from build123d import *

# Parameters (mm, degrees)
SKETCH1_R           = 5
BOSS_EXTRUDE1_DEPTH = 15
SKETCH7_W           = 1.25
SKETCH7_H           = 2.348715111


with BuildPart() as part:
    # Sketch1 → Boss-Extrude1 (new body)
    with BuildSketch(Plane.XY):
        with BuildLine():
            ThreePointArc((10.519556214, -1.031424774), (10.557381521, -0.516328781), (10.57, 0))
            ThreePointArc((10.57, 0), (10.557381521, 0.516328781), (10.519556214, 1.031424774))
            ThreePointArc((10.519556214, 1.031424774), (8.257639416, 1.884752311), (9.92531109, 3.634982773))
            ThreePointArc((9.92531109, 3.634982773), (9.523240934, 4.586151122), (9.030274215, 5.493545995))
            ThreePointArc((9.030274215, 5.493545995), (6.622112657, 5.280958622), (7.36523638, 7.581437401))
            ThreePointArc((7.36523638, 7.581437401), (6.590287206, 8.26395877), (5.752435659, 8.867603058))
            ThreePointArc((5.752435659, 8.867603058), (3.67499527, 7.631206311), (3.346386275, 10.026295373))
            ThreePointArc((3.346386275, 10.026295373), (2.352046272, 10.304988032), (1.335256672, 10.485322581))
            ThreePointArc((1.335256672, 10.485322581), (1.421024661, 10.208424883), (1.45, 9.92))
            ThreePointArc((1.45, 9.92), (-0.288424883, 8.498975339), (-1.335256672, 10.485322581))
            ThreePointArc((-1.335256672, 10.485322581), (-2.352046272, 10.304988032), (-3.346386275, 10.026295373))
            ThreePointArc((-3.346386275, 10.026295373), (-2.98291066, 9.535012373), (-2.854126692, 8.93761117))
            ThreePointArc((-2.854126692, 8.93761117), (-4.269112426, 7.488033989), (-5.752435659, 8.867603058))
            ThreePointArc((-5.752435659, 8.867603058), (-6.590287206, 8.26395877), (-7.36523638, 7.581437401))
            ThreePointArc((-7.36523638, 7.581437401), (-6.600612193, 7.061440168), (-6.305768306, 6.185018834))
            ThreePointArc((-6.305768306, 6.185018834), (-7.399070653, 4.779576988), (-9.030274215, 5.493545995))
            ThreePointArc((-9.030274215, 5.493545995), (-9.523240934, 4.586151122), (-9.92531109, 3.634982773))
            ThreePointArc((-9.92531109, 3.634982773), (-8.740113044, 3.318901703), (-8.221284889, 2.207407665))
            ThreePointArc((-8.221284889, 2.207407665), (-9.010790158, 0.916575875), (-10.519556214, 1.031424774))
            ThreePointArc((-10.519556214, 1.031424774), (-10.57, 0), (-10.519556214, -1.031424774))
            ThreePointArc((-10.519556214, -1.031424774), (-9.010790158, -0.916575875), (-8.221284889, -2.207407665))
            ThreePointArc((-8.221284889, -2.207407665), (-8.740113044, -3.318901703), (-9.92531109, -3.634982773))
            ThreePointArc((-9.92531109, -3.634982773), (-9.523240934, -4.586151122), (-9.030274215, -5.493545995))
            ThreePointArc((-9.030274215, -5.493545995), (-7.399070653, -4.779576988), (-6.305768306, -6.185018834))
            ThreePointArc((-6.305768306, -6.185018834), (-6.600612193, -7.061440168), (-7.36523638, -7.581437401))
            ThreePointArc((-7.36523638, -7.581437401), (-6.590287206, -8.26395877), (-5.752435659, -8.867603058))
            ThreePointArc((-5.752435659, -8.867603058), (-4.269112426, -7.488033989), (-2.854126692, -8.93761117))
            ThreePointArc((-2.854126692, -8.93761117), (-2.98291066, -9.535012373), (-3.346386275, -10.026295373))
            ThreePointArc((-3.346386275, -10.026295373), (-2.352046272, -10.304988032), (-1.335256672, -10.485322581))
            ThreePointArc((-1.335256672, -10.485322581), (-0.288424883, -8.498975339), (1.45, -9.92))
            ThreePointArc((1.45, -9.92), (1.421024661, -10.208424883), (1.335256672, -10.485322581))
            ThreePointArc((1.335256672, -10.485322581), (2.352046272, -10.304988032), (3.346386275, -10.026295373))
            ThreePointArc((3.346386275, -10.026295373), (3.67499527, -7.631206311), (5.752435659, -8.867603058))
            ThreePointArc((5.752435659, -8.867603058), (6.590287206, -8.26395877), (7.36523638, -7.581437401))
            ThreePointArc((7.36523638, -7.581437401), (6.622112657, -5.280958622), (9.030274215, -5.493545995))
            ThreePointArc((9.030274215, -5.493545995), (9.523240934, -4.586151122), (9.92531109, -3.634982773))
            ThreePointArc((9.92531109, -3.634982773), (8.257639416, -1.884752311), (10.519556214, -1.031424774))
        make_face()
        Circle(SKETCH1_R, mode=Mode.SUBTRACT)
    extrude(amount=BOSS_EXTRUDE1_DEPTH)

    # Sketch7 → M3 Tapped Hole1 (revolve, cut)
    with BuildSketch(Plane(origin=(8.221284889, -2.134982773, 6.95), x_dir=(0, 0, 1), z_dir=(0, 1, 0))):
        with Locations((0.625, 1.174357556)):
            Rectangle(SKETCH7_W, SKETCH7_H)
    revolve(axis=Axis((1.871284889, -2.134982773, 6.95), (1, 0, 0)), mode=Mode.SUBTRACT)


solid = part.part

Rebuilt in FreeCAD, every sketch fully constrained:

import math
import FreeCAD as App
import Part
import Sketcher


def add_polygon(sketch, points):
    """Adds a closed chain of lines whose ends are joined by coincident constraints."""
    first, n = sketch.GeometryCount, len(points)
    for a, b in zip(points, points[1:] + points[:1]):
        sketch.addGeometry(Part.LineSegment(App.Vector(*a, 0), App.Vector(*b, 0)), False)
    for i in range(n):
        sketch.addConstraint(Sketcher.Constraint("Coincident", first + i, 2, first + (i + 1) % n, 1))

doc = App.newDocument("Part")
body = doc.addObject("PartDesign::Body", "Body")

# Sketch on XY plane
sketch1 = body.newObject("Sketcher::SketchObject", "Sketch")
sketch1.AttachmentSupport = (doc.getObject("XY_Plane"), [""])
sketch1.MapMode = "FlatFace"
sketch1.addGeometry([
    Part.ArcOfCircle(Part.Circle(App.Vector(0, 0, 0), App.Vector(0, 0, 1), 10.6), math.radians(-5.6), math.radians(0)),  # 0
    Part.ArcOfCircle(Part.Circle(App.Vector(0, 0, 0), App.Vector(0, 0, 1), 10.6), math.radians(0), math.radians(5.6)),  # 1
    Part.ArcOfCircle(Part.Circle(App.Vector(9.7, 2.2, 0), App.Vector(0, 0, 1), 1.4), math.radians(80), math.radians(306)),  # 2
    Part.ArcOfCircle(Part.Circle(App.Vector(0, 0, 0), App.Vector(0, 0, 1), 10.6), math.radians(20.11), math.radians(31.31)),  # 3
    Part.ArcOfCircle(Part.Circle(App.Vector(7.8, 6.2, 0), App.Vector(0, 0, 1), 1.4), math.radians(106), math.radians(332)),  # 4
    Part.ArcOfCircle(Part.Circle(App.Vector(0, 0, 0), App.Vector(0, 0, 1), 10.6), math.radians(45.83), math.radians(57.03)),  # 5
    Part.ArcOfCircle(Part.Circle(App.Vector(4.3, 8.9, 0), App.Vector(0, 0, 1), 1.4), math.radians(131), math.radians(357)),  # 6
    Part.ArcOfCircle(Part.Circle(App.Vector(0, 0, 0), App.Vector(0, 0, 1), 10.6), math.radians(71.54), math.radians(82.74)),  # 7
    Part.ArcOfCircle(Part.Circle(App.Vector(0, 9.9, 0), App.Vector(0, 0, 1), 1.5), math.radians(0), math.radians(23)),  # 8
    Part.ArcOfCircle(Part.Circle(App.Vector(0, 9.9, 0), App.Vector(0, 0, 1), 1.4), math.radians(157), math.radians(360)),  # 9
    Part.ArcOfCircle(Part.Circle(App.Vector(0, 0, 0), App.Vector(0, 0, 1), 10.6), math.radians(97.26), math.radians(108.46)),  # 10
    Part.ArcOfCircle(Part.Circle(App.Vector(-4.3, 8.9, 0), App.Vector(0, 0, 1), 1.4), math.radians(0), math.radians(49)),  # 11
    Part.ArcOfCircle(Part.Circle(App.Vector(-4.3, 8.9, 0), App.Vector(0, 0, 1), 1.4), math.radians(-177), math.radians(0)),  # 12
    Part.ArcOfCircle(Part.Circle(App.Vector(0, 0, 0), App.Vector(0, 0, 1), 10.6), math.radians(122.97), math.radians(134.17)),  # 13
    Part.ArcOfCircle(Part.Circle(App.Vector(-7.8, 6.2, 0), App.Vector(0, 0, 1), 1.4), math.radians(0), math.radians(74)),  # 14
    Part.ArcOfCircle(Part.Circle(App.Vector(-7.8, 6.2, 0), App.Vector(0, 0, 1), 1.4), math.radians(-152), math.radians(0)),  # 15
    Part.ArcOfCircle(Part.Circle(App.Vector(0, 0, 0), App.Vector(0, 0, 1), 10.6), math.radians(148.69), math.radians(159.89)),  # 16
    Part.ArcOfCircle(Part.Circle(App.Vector(-9.7, 2.2, 0), App.Vector(0, 0, 1), 1.4), math.radians(0), math.radians(100)),  # 17
    Part.ArcOfCircle(Part.Circle(App.Vector(-9.7, 2.2, 0), App.Vector(0, 0, 1), 1.4), math.radians(-126), math.radians(0)),  # 18
    Part.ArcOfCircle(Part.Circle(App.Vector(0, 0, 0), App.Vector(0, 0, 1), 10.6), math.radians(174.4), math.radians(185.6)),  # 19
    Part.ArcOfCircle(Part.Circle(App.Vector(-9.7, -2.2, 0), App.Vector(0, 0, 1), 1.4), math.radians(0), math.radians(126)),  # 20
    Part.ArcOfCircle(Part.Circle(App.Vector(-9.7, -2.2, 0), App.Vector(0, 0, 1), 1.4), math.radians(-100), math.radians(0)),  # 21
    Part.ArcOfCircle(Part.Circle(App.Vector(0, 0, 0), App.Vector(0, 0, 1), 10.6), math.radians(-159.89), math.radians(-148.69)),  # 22
    Part.ArcOfCircle(Part.Circle(App.Vector(-7.8, -6.2, 0), App.Vector(0, 0, 1), 1.4), math.radians(0), math.radians(152)),  # 23
    Part.ArcOfCircle(Part.Circle(App.Vector(-7.8, -6.2, 0), App.Vector(0, 0, 1), 1.4), math.radians(-74), math.radians(0)),  # 24
    Part.ArcOfCircle(Part.Circle(App.Vector(0, 0, 0), App.Vector(0, 0, 1), 10.6), math.radians(-134.17), math.radians(-122.97)),  # 25
    Part.ArcOfCircle(Part.Circle(App.Vector(-4.3, -8.9, 0), App.Vector(0, 0, 1), 1.4), math.radians(0), math.radians(177)),  # 26
    Part.ArcOfCircle(Part.Circle(App.Vector(-4.3, -8.9, 0), App.Vector(0, 0, 1), 1.4), math.radians(-49), math.radians(0)),  # 27
    Part.ArcOfCircle(Part.Circle(App.Vector(0, 0, 0), App.Vector(0, 0, 1), 10.6), math.radians(-108.46), math.radians(-97.26)),  # 28
    Part.ArcOfCircle(Part.Circle(App.Vector(0, -9.9, 0), App.Vector(0, 0, 1), 1.4), math.radians(0), math.radians(203)),  # 29
    Part.ArcOfCircle(Part.Circle(App.Vector(0, -9.9, 0), App.Vector(0, 0, 1), 1.5), math.radians(-23), math.radians(0)),  # 30
    Part.ArcOfCircle(Part.Circle(App.Vector(0, 0, 0), App.Vector(0, 0, 1), 10.6), math.radians(-82.74), math.radians(-71.54)),  # 31
    Part.ArcOfCircle(Part.Circle(App.Vector(4.3, -8.9, 0), App.Vector(0, 0, 1), 1.4), math.radians(3), math.radians(229)),  # 32
    Part.ArcOfCircle(Part.Circle(App.Vector(0, 0, 0), App.Vector(0, 0, 1), 10.6), math.radians(-57.03), math.radians(-45.83)),  # 33
    Part.ArcOfCircle(Part.Circle(App.Vector(7.8, -6.2, 0), App.Vector(0, 0, 1), 1.4), math.radians(28), math.radians(254)),  # 34
    Part.ArcOfCircle(Part.Circle(App.Vector(0, 0, 0), App.Vector(0, 0, 1), 10.6), math.radians(-31.31), math.radians(-20.11)),  # 35
    Part.ArcOfCircle(Part.Circle(App.Vector(9.7, -2.2, 0), App.Vector(0, 0, 1), 1.4), math.radians(54), math.radians(280)),  # 36
    Part.Circle(App.Vector(0, 0, 0), App.Vector(0, 0, 1), 5),  # 37
], False)
sketch1.addConstraint([
    Sketcher.Constraint("Tangent", 0, 2, 1, 1),
    Sketcher.Constraint("Coincident", 1, 2, 2, 2),
    Sketcher.Constraint("Coincident", 2, 1, 3, 1),
    Sketcher.Constraint("Coincident", 3, 2, 4, 2),
    Sketcher.Constraint("Coincident", 4, 1, 5, 1),
    Sketcher.Constraint("Coincident", 5, 2, 6, 2),
    Sketcher.Constraint("Coincident", 6, 1, 7, 1),
    Sketcher.Constraint("Coincident", 7, 2, 8, 2),
    Sketcher.Constraint("Tangent", 8, 1, 9, 2),
    Sketcher.Constraint("Coincident", 9, 1, 10, 1),
    Sketcher.Constraint("Coincident", 10, 2, 11, 2),
    Sketcher.Constraint("Tangent", 11, 1, 12, 2),
    Sketcher.Constraint("Coincident", 12, 1, 13, 1),
    Sketcher.Constraint("Coincident", 13, 2, 14, 2),
    Sketcher.Constraint("Tangent", 14, 1, 15, 2),
    Sketcher.Constraint("Coincident", 15, 1, 16, 1),
    Sketcher.Constraint("Coincident", 16, 2, 17, 2),
    Sketcher.Constraint("Tangent", 17, 1, 18, 2),
    Sketcher.Constraint("Coincident", 18, 1, 19, 1),
    Sketcher.Constraint("Coincident", 19, 2, 20, 2),
    Sketcher.Constraint("Tangent", 20, 1, 21, 2),
    Sketcher.Constraint("Coincident", 21, 1, 22, 1),
    Sketcher.Constraint("Coincident", 22, 2, 23, 2),
    Sketcher.Constraint("Tangent", 23, 1, 24, 2),
    Sketcher.Constraint("Coincident", 24, 1, 25, 1),
    Sketcher.Constraint("Coincident", 25, 2, 26, 2),
    Sketcher.Constraint("Tangent", 26, 1, 27, 2),
    Sketcher.Constraint("Coincident", 27, 1, 28, 1),
    Sketcher.Constraint("Coincident", 28, 2, 29, 2),
    Sketcher.Constraint("Tangent", 29, 1, 30, 2),
    Sketcher.Constraint("Coincident", 30, 1, 31, 1),
    Sketcher.Constraint("Coincident", 31, 2, 32, 2),
    Sketcher.Constraint("Coincident", 32, 1, 33, 1),
    Sketcher.Constraint("Coincident", 33, 2, 34, 2),
    Sketcher.Constraint("Coincident", 34, 1, 35, 1),
    Sketcher.Constraint("Coincident", 35, 2, 36, 2),
    Sketcher.Constraint("Coincident", 36, 1, 0, 1),
    Sketcher.Constraint("Coincident", 0, 3, -1, 1),
    Sketcher.Constraint("Coincident", 3, 3, -1, 1),
    Sketcher.Constraint("Coincident", 5, 3, -1, 1),
    Sketcher.Constraint("Coincident", 7, 3, -1, 1),
    Sketcher.Constraint("Coincident", 10, 3, -1, 1),
    Sketcher.Constraint("Coincident", 13, 3, -1, 1),
    Sketcher.Constraint("Coincident", 16, 3, -1, 1),
    Sketcher.Constraint("Coincident", 19, 3, -1, 1),
    Sketcher.Constraint("Coincident", 22, 3, -1, 1),
    Sketcher.Constraint("Coincident", 25, 3, -1, 1),
    Sketcher.Constraint("Coincident", 28, 3, -1, 1),
    Sketcher.Constraint("Coincident", 31, 3, -1, 1),
    Sketcher.Constraint("Coincident", 33, 3, -1, 1),
    Sketcher.Constraint("Coincident", 35, 3, -1, 1),
    Sketcher.Constraint("Coincident", 37, 3, -1, 1),
    Sketcher.Constraint("Equal", 0, 1),
    Sketcher.Constraint("Equal", 1, 3),
    Sketcher.Constraint("Equal", 2, 4),
    Sketcher.Constraint("Equal", 3, 5),
    Sketcher.Constraint("Equal", 4, 6),
    Sketcher.Constraint("Equal", 5, 7),
    Sketcher.Constraint("Equal", 6, 8),
    Sketcher.Constraint("Equal", 8, 9),
    Sketcher.Constraint("Equal", 7, 10),
    Sketcher.Constraint("Equal", 9, 11),
    Sketcher.Constraint("Equal", 11, 12),
    Sketcher.Constraint("Equal", 10, 13),
    Sketcher.Constraint("Equal", 12, 14),
    Sketcher.Constraint("Equal", 14, 15),
    Sketcher.Constraint("Equal", 13, 16),
    Sketcher.Constraint("Equal", 15, 17),
    Sketcher.Constraint("Equal", 17, 18),
    Sketcher.Constraint("Equal", 16, 19),
    Sketcher.Constraint("Equal", 18, 20),
    Sketcher.Constraint("Equal", 20, 21),
    Sketcher.Constraint("Equal", 19, 22),
    Sketcher.Constraint("Equal", 21, 23),
    Sketcher.Constraint("Equal", 23, 24),
    Sketcher.Constraint("Equal", 22, 25),
    Sketcher.Constraint("Equal", 24, 26),
    Sketcher.Constraint("Equal", 26, 27),
    Sketcher.Constraint("Equal", 25, 28),
    Sketcher.Constraint("Equal", 27, 29),
    Sketcher.Constraint("Equal", 29, 30),
    Sketcher.Constraint("Equal", 28, 31),
    Sketcher.Constraint("Equal", 30, 32),
    Sketcher.Constraint("Equal", 31, 33),
    Sketcher.Constraint("Equal", 32, 34),
    Sketcher.Constraint("Equal", 33, 35),
    Sketcher.Constraint("Equal", 34, 36),
    Sketcher.Constraint("Symmetric", 2, 3, 20, 3, -1, 1),
    Sketcher.Constraint("Symmetric", 4, 3, 23, 3, -1, 1),
    Sketcher.Constraint("Symmetric", 6, 3, 26, 3, -1, 1),
    Sketcher.Constraint("Symmetric", 8, 3, 29, 3, -1, 1),
    Sketcher.Constraint("Symmetric", 11, 3, 32, 3, -1, 1),
    Sketcher.Constraint("Symmetric", 14, 3, 34, 3, -1, 1),
    Sketcher.Constraint("Symmetric", 17, 3, 36, 3, -1, 1),
    Sketcher.Constraint("Symmetric", 6, 3, 11, 3, -2),
    Sketcher.Constraint("Symmetric", 4, 3, 14, 3, -2),
    Sketcher.Constraint("Symmetric", 2, 3, 17, 3, -2),
    Sketcher.Constraint("Symmetric", 8, 1, 29, 1, -1),
    Sketcher.Constraint("PointOnObject", 0, 2, -1),
    Sketcher.Constraint("Horizontal", 9, 3, 8, 1),
    Sketcher.Constraint("Horizontal", 12, 3, 11, 1),
    Sketcher.Constraint("Horizontal", 15, 3, 14, 1),
    Sketcher.Constraint("Horizontal", 18, 3, 17, 1),
    Sketcher.Constraint("Horizontal", 36, 3, 20, 1),
    Sketcher.Constraint("Horizontal", 34, 3, 23, 1),
    Sketcher.Constraint("Horizontal", 32, 3, 26, 1),
    Sketcher.Constraint("Diameter", 37, 10.0),
    Sketcher.Constraint("Radius", 0, 10.57),
    Sketcher.Constraint("Radius", 2, 1.45),
    Sketcher.Constraint("DistanceY", -1, 1, 8, 3, 9.92),
    Sketcher.Constraint("DistanceX", -1, 1, 4, 3, 7.755768),
    Sketcher.Constraint("DistanceY", -1, 1, 4, 3, 6.185019),
    Sketcher.Constraint("DistanceY", -1, 1, 6, 3, 8.937611),
    Sketcher.Constraint("DistanceX", -1, 1, 2, 1, 9.925311),
    Sketcher.Constraint("DistanceX", -1, 1, 2, 3, 9.671285),
    Sketcher.Constraint("DistanceX", -1, 1, 6, 3, 4.304127),
])
pad1 = body.newObject("PartDesign::Pad", "Pad")
pad1.Profile = sketch1
pad1.Length = 15

# Sketch on XZ plane
sketch2 = body.newObject("Sketcher::SketchObject", "Sketch001")
sketch2.AttachmentSupport = (doc.getObject("XZ_Plane"), [""])
sketch2.MapMode = "FlatFace"
sketch2.AttachmentOffset = App.Placement(App.Vector(0, 0, 2.134983), App.Rotation())
add_polygon(sketch2, [(10.6, 7), (8.2, 7), (8.2, 8.2), (10.6, 8.2)])  # lines 0-3
sketch2.addGeometry(Part.LineSegment(App.Vector(8.2, 7, 0), App.Vector(10.6, 7, 0)), True)  # axis
sketch2.addConstraint([
    Sketcher.Constraint("Horizontal", 0),
    Sketcher.Constraint("Vertical", 1),
    Sketcher.Constraint("Horizontal", 2),
    Sketcher.Constraint("Vertical", 3),
    Sketcher.Constraint("Horizontal", 4),
    Sketcher.Constraint("Coincident", 4, 1, 0, 2),
    Sketcher.Constraint("Vertical", 2, 2, 4, 2),
    Sketcher.Constraint("DistanceY", 1, 1, 1, 2, 1.25),
    Sketcher.Constraint("DistanceY", -1, 1, 1, 2, 8.2),
    Sketcher.Constraint("DistanceX", -1, 1, 2, 2, 10.57),
    Sketcher.Constraint("DistanceX", 0, 2, 0, 1, 2.348715),
])
groove = body.newObject("PartDesign::Groove", "Groove")
groove.Profile = sketch2
groove.ReferenceAxis = (sketch2, ["Axis0"])
groove.Angle = 360

doc.recompute()
